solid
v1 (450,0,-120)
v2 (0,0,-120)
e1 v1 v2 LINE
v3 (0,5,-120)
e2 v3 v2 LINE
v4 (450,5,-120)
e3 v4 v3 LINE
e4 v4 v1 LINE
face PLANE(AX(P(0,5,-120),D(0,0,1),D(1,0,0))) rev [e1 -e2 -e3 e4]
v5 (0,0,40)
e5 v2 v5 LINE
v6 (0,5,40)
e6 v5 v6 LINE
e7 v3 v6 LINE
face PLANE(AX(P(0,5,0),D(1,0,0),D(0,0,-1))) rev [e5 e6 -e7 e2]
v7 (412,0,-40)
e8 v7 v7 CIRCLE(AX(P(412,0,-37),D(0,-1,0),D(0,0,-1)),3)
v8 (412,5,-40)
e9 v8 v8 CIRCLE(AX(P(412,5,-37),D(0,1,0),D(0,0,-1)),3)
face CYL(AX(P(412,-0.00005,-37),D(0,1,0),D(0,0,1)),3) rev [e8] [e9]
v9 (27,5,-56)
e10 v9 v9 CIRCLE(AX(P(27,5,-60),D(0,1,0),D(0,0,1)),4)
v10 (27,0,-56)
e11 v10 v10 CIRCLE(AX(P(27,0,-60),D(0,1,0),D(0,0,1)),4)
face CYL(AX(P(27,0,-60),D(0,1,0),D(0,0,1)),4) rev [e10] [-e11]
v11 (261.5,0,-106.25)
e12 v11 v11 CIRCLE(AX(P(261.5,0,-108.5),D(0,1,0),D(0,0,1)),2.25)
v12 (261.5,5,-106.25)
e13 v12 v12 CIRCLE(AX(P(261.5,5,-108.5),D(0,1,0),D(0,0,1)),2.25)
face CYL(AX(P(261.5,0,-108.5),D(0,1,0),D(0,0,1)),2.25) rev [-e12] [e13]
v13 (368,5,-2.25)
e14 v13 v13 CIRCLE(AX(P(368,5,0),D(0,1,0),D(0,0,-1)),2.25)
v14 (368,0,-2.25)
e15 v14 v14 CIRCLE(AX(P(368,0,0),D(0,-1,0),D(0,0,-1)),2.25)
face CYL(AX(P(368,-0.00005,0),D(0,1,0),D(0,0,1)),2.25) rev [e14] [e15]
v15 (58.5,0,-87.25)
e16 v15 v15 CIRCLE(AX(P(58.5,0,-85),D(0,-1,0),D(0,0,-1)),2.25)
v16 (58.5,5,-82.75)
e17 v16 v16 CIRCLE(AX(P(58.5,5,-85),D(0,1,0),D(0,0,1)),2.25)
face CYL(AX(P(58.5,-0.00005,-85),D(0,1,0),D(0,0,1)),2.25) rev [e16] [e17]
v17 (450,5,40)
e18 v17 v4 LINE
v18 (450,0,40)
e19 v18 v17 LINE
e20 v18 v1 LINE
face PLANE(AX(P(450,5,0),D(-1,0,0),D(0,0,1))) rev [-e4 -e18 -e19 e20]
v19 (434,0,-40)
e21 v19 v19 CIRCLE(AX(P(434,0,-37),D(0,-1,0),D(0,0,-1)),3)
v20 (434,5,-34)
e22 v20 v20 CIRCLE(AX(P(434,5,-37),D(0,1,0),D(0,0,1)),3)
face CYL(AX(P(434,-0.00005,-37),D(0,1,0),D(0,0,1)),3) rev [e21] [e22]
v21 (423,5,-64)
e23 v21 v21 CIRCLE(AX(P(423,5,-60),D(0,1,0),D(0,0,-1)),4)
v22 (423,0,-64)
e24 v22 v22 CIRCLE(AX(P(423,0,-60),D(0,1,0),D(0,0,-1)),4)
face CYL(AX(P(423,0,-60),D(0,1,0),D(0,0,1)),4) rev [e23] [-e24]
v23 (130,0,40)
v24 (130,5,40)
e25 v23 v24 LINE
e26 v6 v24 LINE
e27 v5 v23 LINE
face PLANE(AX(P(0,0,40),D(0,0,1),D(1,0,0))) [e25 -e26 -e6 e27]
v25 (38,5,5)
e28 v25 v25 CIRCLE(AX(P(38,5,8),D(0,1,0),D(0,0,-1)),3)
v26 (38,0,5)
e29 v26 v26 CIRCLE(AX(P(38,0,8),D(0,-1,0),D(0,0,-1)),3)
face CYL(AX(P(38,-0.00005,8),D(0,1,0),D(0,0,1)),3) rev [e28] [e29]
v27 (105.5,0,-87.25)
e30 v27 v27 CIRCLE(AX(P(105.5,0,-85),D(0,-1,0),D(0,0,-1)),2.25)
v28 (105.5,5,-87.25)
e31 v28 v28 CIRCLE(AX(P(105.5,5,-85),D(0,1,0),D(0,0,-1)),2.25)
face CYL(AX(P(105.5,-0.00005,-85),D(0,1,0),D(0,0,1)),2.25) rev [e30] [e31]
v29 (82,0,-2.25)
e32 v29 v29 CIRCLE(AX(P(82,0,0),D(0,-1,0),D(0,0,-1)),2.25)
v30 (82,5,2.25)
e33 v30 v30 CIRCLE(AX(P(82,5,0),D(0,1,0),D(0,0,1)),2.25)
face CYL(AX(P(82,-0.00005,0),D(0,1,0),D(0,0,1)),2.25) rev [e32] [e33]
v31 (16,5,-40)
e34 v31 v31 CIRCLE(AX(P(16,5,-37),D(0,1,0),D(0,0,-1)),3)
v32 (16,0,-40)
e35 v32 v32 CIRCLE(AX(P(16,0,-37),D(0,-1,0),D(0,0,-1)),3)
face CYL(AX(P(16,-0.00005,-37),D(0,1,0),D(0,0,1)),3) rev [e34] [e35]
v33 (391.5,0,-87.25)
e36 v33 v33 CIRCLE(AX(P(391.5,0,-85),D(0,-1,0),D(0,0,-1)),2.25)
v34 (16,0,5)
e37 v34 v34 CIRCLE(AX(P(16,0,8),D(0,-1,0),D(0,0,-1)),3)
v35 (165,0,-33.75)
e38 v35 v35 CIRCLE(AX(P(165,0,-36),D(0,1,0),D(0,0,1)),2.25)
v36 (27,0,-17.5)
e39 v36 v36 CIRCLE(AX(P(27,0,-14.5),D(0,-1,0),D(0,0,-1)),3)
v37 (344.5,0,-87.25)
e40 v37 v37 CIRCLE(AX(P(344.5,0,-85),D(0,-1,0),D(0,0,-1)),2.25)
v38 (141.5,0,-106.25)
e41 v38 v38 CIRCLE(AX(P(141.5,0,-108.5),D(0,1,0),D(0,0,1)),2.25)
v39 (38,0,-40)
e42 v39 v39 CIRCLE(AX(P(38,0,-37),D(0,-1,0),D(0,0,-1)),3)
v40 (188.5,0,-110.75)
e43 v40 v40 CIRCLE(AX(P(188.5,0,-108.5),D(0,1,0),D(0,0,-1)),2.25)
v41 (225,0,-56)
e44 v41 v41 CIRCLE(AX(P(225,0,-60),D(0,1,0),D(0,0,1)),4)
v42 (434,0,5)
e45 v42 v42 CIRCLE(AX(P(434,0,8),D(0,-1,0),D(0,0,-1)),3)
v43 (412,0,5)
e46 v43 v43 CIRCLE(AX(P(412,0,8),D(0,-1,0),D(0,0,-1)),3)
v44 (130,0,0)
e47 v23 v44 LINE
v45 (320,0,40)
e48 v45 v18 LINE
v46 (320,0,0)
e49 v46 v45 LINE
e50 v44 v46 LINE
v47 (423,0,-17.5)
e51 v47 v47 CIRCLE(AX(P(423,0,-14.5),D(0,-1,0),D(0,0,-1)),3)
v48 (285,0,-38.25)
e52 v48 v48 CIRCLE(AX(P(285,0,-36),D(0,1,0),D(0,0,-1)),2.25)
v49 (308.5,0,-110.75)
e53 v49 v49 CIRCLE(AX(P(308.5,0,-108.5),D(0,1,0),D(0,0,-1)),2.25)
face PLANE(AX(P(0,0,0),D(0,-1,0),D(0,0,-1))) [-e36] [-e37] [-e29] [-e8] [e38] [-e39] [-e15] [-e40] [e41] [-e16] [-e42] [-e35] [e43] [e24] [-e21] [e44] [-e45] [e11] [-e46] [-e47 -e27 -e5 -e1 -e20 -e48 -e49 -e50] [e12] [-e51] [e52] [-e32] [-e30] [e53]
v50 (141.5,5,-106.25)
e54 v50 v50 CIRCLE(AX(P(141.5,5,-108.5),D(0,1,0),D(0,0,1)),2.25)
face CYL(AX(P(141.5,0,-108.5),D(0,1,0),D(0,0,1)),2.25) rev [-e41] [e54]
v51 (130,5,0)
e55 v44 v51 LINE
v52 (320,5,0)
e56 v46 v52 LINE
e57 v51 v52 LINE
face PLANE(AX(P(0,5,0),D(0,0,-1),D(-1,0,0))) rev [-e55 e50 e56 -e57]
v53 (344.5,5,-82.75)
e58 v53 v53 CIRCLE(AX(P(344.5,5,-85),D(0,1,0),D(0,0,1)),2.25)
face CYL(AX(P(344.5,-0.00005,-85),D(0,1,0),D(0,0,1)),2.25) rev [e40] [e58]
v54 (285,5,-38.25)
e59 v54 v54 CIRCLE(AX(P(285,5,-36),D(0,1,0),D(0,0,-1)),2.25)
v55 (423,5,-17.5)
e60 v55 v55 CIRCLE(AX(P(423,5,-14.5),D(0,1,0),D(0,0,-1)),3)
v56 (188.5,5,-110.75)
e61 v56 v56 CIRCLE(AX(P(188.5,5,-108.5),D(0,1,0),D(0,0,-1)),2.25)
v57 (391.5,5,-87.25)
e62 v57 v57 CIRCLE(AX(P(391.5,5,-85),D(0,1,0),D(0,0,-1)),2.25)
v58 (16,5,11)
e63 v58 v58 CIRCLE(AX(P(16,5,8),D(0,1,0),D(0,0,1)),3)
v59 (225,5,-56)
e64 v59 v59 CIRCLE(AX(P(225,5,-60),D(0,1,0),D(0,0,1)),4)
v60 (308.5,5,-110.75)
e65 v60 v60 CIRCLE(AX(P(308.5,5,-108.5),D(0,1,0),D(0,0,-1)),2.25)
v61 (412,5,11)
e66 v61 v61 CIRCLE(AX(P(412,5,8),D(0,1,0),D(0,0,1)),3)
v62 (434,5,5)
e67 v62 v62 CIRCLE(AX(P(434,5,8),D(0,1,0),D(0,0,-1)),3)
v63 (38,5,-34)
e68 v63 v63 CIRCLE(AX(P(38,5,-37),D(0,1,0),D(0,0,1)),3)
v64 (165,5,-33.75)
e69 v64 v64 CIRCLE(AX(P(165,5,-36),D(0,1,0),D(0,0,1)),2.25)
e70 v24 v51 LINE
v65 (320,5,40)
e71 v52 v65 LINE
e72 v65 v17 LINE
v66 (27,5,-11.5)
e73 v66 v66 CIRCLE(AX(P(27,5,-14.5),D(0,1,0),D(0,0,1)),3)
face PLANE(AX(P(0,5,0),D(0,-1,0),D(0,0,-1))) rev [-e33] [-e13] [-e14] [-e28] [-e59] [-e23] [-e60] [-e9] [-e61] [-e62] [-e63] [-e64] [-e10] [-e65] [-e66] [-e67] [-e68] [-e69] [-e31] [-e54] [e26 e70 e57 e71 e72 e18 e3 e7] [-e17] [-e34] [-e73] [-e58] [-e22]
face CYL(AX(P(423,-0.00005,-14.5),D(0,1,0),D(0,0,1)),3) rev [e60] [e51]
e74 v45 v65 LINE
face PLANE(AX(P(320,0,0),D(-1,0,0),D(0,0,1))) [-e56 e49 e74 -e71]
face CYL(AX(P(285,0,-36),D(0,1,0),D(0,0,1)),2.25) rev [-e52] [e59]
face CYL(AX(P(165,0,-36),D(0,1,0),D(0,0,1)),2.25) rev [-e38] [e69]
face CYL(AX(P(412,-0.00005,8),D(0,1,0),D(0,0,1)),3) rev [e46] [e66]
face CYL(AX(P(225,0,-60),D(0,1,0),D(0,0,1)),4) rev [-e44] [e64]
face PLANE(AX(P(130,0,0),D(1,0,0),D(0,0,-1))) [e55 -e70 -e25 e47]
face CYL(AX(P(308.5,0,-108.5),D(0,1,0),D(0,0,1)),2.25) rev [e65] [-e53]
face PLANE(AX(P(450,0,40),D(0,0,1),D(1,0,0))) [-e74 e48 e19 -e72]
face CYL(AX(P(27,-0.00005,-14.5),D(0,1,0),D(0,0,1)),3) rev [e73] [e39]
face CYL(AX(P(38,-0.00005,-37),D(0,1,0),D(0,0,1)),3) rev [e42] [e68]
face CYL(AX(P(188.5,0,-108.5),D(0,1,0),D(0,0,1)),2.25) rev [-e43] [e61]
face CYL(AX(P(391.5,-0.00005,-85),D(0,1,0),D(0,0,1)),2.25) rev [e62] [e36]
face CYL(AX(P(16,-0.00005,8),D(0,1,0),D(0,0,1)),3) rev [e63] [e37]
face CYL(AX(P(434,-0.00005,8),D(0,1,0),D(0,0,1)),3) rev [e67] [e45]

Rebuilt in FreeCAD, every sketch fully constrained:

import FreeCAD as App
import Part
import Sketcher

V = App.Vector
Q = App.Units.Quantity


def add_polygon(sketch, points):
    """Adds a closed chain of lines whose ends are joined by coincident constraints."""
    first, n = sketch.GeometryCount, len(points)
    for a, b in zip(points, points[1:] + points[:1]):
        sketch.addGeometry(Part.LineSegment(App.Vector(*a, 0), App.Vector(*b, 0)), False)
    for i in range(n):
        sketch.addConstraint(Sketcher.Constraint("Coincident", first + i, 2, first + (i + 1) % n, 1))

doc = App.newDocument("Part")
body = doc.addObject("PartDesign::Body", "Body")

# Sketch on XZ plane
sketch1 = doc.addObject("Sketcher::SketchObject", "Sketch")
body.addObject(sketch1)
sketch1.AttachmentSupport = (doc.XZ_Plane, [""])
sketch1.MapMode = "FlatFace"
add_polygon(sketch1, [(0, -120), (0, 0), (450, 0), (450, -120)])  # lines 0-3
sketch1.addConstraint([
    Sketcher.Constraint("Vertical", 0),
    Sketcher.Constraint("Horizontal", 1),
    Sketcher.Constraint("Vertical", 2),
    Sketcher.Constraint("Horizontal", 3),
    Sketcher.Constraint("Coincident", 0, 2, -1, 1),
    Sketcher.Constraint("DistanceX", 1, 1, 1, 2, Q("450 mm")),
    Sketcher.Constraint("DistanceY", 0, 1, 0, 2, Q("120 mm")),
])
pad1 = doc.addObject("PartDesign::Pad", "Pad")
body.addObject(pad1)
pad1.Profile = sketch1
pad1.Length = 5
pad1.Reversed = True

# Sketch on XZ plane
sketch2 = doc.addObject("Sketcher::SketchObject", "Sketch001")
body.addObject(sketch2)
sketch2.AttachmentSupport = (doc.XZ_Plane, [""])
sketch2.MapMode = "FlatFace"
sketch2.AttachmentOffset = App.Placement(V(0, 0, -5), App.Rotation())
sketch2.addGeometry([
    Part.Circle(V(225, -60, 0), V(0, 0, 1), 4),
    Part.Circle(V(27, -60, 0), V(0, 0, 1), 4),
    Part.Circle(V(423, -60, 0), V(0, 0, 1), 4),
], False)
sketch2.addConstraint([
    Sketcher.Constraint("Equal", 0, 1),
    Sketcher.Constraint("Equal", 1, 2),
    Sketcher.Constraint("Horizontal", 0, 3, 1, 3),
    Sketcher.Constraint("Horizontal", 1, 3, 2, 3),
    Sketcher.Constraint("Diameter", 0, Q("8 mm")),
    Sketcher.Constraint("DistanceX", -1, 1, 0, 3, Q("225 mm")),
    Sketcher.Constraint("DistanceY", 0, 3, -1, 1, Q("60 mm")),
    Sketcher.Constraint("DistanceX", -1, 1, 1, 3, Q("27 mm")),
    Sketcher.Constraint("DistanceX", -1, 1, 2, 3, Q("423 mm")),
])
pocket1 = doc.addObject("PartDesign::Pocket", "Pocket")
body.addObject(pocket1)
pocket1.Profile = sketch2
pocket1.Type = "ThroughAll"
pocket1.Reversed = True

# Sketch on XZ plane
sketch3 = doc.addObject("Sketcher::SketchObject", "Sketch002")
body.addObject(sketch3)
sketch3.AttachmentSupport = (doc.XZ_Plane, [""])
sketch3.MapMode = "FlatFace"
sketch3.AttachmentOffset = App.Placement(V(0, 0, -5), App.Rotation())
sketch3.addGeometry([
    Part.Circle(V(165, -36, 0), V(0, 0, 1), 2.2),  # 0
    Part.Circle(V(141.5, -108.5, 0), V(0, 0, 1), 2.2),  # 1
    Part.Circle(V(188.5, -108.5, 0), V(0, 0, 1), 2.2),  # 2
    Part.Circle(V(285, -36, 0), V(0, 0, 1), 2.2),  # 3
    Part.Circle(V(261.5, -108.5, 0), V(0, 0, 1), 2.2),  # 4
    Part.Circle(V(308.5, -108.5, 0), V(0, 0, 1), 2.2),  # 5
], False)
sketch3.addConstraint([
    Sketcher.Constraint("Equal", 0, 1),
    Sketcher.Constraint("Equal", 1, 2),
    Sketcher.Constraint("Equal", 2, 3),
    Sketcher.Constraint("Equal", 3, 4),
    Sketcher.Constraint("Equal", 4, 5),
    Sketcher.Constraint("Horizontal", 1, 3, 2, 3),
    Sketcher.Constraint("Horizontal", 0, 3, 3, 3),
    Sketcher.Constraint("Horizontal", 2, 3, 4, 3),
    Sketcher.Constraint("Horizontal", 4, 3, 5, 3),
    Sketcher.Constraint("Diameter", 0, Q("4.5 mm")),
    Sketcher.Constraint("DistanceX", -1, 1, 0, 3, Q("165 mm")),
    Sketcher.Constraint("DistanceY", 0, 3, -1, 1, Q("36 mm")),
    Sketcher.Constraint("DistanceX", -1, 1, 3, 3, Q("285 mm")),
    Sketcher.Constraint("DistanceX", 1, 3, 2, 3, Q("47 mm")),
    Sketcher.Constraint("DistanceX", 2, 3, 4, 3, Q("73 mm")),
    Sketcher.Constraint("DistanceX", 4, 3, 5, 3, Q("47 mm")),
    Sketcher.Constraint("DistanceX", -1, 1, 1, 3, Q("141.5 mm")),
    Sketcher.Constraint("DistanceY", 1, 3, -1, 1, Q("108.5 mm")),
])
pocket2 = doc.addObject("PartDesign::Pocket", "Pocket001")
body.addObject(pocket2)
pocket2.Profile = sketch3
pocket2.Type = "ThroughAll"
pocket2.Reversed = True

# Sketch on XZ plane
sketch4 = doc.addObject("Sketcher::SketchObject", "Sketch003")
body.addObject(sketch4)
sketch4.AttachmentSupport = (doc.XZ_Plane, [""])
sketch4.MapMode = "FlatFace"
sketch4.AttachmentOffset = App.Placement(V(0, 0, -5), App.Rotation())
add_polygon(sketch4, [(0, 0), (0, 40), (130, 40), (130, 0)])  # lines 0-3
add_polygon(sketch4, [(320, 0), (320, 40), (450, 40), (450, 0)])  # lines 4-7
sketch4.addConstraint([
    Sketcher.Constraint("Vertical", 0),
    Sketcher.Constraint("Horizontal", 1),
    Sketcher.Constraint("Vertical", 2),
    Sketcher.Constraint("Horizontal", 3),
    Sketcher.Constraint("Vertical", 4),
    Sketcher.Constraint("Horizontal", 5),
    Sketcher.Constraint("Vertical", 6),
    Sketcher.Constraint("Horizontal", 7),
    Sketcher.Constraint("Coincident", 3, 2, -1, 1),
    Sketcher.Constraint("PointOnObject", 6, 2, -1),
    Sketcher.Constraint("Horizontal", 1, 2, 4, 2),
    Sketcher.Constraint("Equal", 3, 5),
    Sketcher.Constraint("DistanceX", 1, 1, 1, 2, Q("130 mm")),
    Sketcher.Constraint("DistanceY", 0, 1, 0, 2, Q("40 mm")),
    Sketcher.Constraint("DistanceX", -1, 1, 4, 2, Q("320 mm")),
])
pad2 = doc.addObject("PartDesign::Pad", "Pad001")
body.addObject(pad2)
pad2.Profile = sketch4
pad2.Length = 5

# Sketch on XZ plane
sketch5 = doc.addObject("Sketcher::SketchObject", "Sketch004")
body.addObject(sketch5)
sketch5.AttachmentSupport = (doc.XZ_Plane, [""])
sketch5.MapMode = "FlatFace"
sketch5.AttachmentOffset = App.Placement(V(0, 0, -5), App.Rotation())
sketch5.addGeometry([
    Part.Circle(V(82, 0, 0), V(0, 0, 1), 2.2),  # 0
    Part.Circle(V(58.5, -85, 0), V(0, 0, 1), 2.2),  # 1
    Part.Circle(V(105.5, -85, 0), V(0, 0, 1), 2.2),  # 2
    Part.Circle(V(368, 0, 0), V(0, 0, 1), 2.2),  # 3
    Part.Circle(V(344.5, -85, 0), V(0, 0, 1), 2.2),  # 4
    Part.Circle(V(391.5, -85, 0), V(0, 0, 1), 2.2),  # 5
], False)
sketch5.addConstraint([
    Sketcher.Constraint("Equal", 0, 1),
    Sketcher.Constraint("Equal", 1, 2),
    Sketcher.Constraint("Equal", 2, 3),
    Sketcher.Constraint("Equal", 3, 4),
    Sketcher.Constraint("Equal", 4, 5),
    Sketcher.Constraint("PointOnObject", 0, 3, -1),
    Sketcher.Constraint("PointOnObject", 3, 3, -1),
    Sketcher.Constraint("Horizontal", 1, 3, 2, 3),
    Sketcher.Constraint("Horizontal", 2, 3, 4, 3),
    Sketcher.Constraint("Horizontal", 4, 3, 5, 3),
    Sketcher.Constraint("Diameter", 0, Q("4.5 mm")),
    Sketcher.Constraint("DistanceX", -1, 1, 0, 3, Q("82 mm")),
    Sketcher.Constraint("DistanceY", 1, 3, -1, 1, Q("85 mm")),
    Sketcher.Constraint("DistanceX", -1, 1, 3, 3, Q("368 mm")),
    Sketcher.Constraint("DistanceX", 1, 3, 2, 3, Q("47 mm")),
    Sketcher.Constraint("DistanceX", 2, 3, 4, 3, Q("239 mm")),
    Sketcher.Constraint("DistanceX", 4, 3, 5, 3, Q("47 mm")),
    Sketcher.Constraint("DistanceX", -1, 1, 1, 3, Q("58.5 mm")),
])
pocket3 = doc.addObject("PartDesign::Pocket", "Pocket002")
body.addObject(pocket3)
pocket3.Profile = sketch5
pocket3.Type = "ThroughAll"
pocket3.Reversed = True

# Sketch on XZ plane
sketch6 = doc.addObject("Sketcher::SketchObject", "Sketch005")
body.addObject(sketch6)
sketch6.AttachmentSupport = (doc.XZ_Plane, [""])
sketch6.MapMode = "FlatFace"
sketch6.AttachmentOffset = App.Placement(V(0, 0, -5), App.Rotation())
sketch6.addGeometry([
    Part.Circle(V(38, -37, 0), V(0, 0, 1), 3),  # 0
    Part.Circle(V(16, -37, 0), V(0, 0, 1), 3),  # 1
    Part.Circle(V(16, 8, 0), V(0, 0, 1), 3),  # 2
    Part.Circle(V(38, 8, 0), V(0, 0, 1), 3),  # 3
    Part.Circle(V(27, -14.5, 0), V(0, 0, 1), 3),  # 4
    Part.Circle(V(412, -37, 0), V(0, 0, 1), 3),  # 5
    Part.Circle(V(434, -37, 0), V(0, 0, 1), 3),  # 6
    Part.Circle(V(434, 8, 0), V(0, 0, 1), 3),  # 7
    Part.Circle(V(423, -14.5, 0), V(0, 0, 1), 3),  # 8
    Part.Circle(V(412, 8, 0), V(0, 0, 1), 3),  # 9
], False)
sketch6.addConstraint([
    Sketcher.Constraint("Equal", 0, 1),
    Sketcher.Constraint("Equal", 1, 2),
    Sketcher.Constraint("Equal", 2, 3),
    Sketcher.Constraint("Equal", 3, 4),
    Sketcher.Constraint("Equal", 4, 5),
    Sketcher.Constraint("Equal", 5, 6),
    Sketcher.Constraint("Equal", 6, 7),
    Sketcher.Constraint("Equal", 7, 8),
    Sketcher.Constraint("Equal", 8, 9),
    Sketcher.Constraint("Horizontal", 0, 3, 1, 3),
    Sketcher.Constraint("Horizontal", 2, 3, 3, 3),
    Sketcher.Constraint("Horizontal", 1, 3, 5, 3),
    Sketcher.Constraint("Horizontal", 5, 3, 6, 3),
    Sketcher.Constraint("Horizontal", 3, 3, 7, 3),
    Sketcher.Constraint("Horizontal", 4, 3, 8, 3),
    Sketcher.Constraint("Horizontal", 7, 3, 9, 3),
    Sketcher.Constraint("Vertical", 1, 3, 2, 3),
    Sketcher.Constraint("Vertical", 0, 3, 3, 3),
    Sketcher.Constraint("Vertical", 6, 3, 7, 3),
    Sketcher.Constraint("Vertical", 5, 3, 9, 3),
    Sketcher.Constraint("Diameter", 0, Q("6 mm")),
    Sketcher.Constraint("DistanceX", -1, 1, 0, 3, Q("38 mm")),
    Sketcher.Constraint("DistanceY", 0, 3, -1, 1, Q("37 mm")),
    Sketcher.Constraint("DistanceX", -1, 1, 1, 3, Q("16 mm")),
    Sketcher.Constraint("DistanceY", -1, 1, 2, 3, Q("8 mm")),
    Sketcher.Constraint("DistanceX", -1, 1, 4, 3, Q("27 mm")),
    Sketcher.Constraint("DistanceX", -1, 1, 5, 3, Q("412 mm")),
    Sketcher.Constraint("DistanceX", -1, 1, 6, 3, Q("434 mm")),
    Sketcher.Constraint("DistanceX", -1, 1, 8, 3, Q("423 mm")),
    Sketcher.Constraint("DistanceY", 4, 3, -1, 1, Q("14.5 mm")),
])
pocket4 = doc.addObject("PartDesign::Pocket", "Pocket003")
body.addObject(pocket4)
pocket4.Profile = sketch6
pocket4.Type = "ThroughAll"
pocket4.Reversed = True

doc.recompute()
